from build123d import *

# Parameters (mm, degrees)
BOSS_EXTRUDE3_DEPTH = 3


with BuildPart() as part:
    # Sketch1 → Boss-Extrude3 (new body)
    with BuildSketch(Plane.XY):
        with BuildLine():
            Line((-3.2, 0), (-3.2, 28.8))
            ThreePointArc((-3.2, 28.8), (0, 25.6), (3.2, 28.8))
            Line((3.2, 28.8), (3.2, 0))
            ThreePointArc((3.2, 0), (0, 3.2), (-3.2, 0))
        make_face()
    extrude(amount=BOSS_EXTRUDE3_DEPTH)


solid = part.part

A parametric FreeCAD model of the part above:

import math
import FreeCAD as App
import Part
import Sketcher
from FreeCAD import Vector

doc = App.newDocument("Part")
body = doc.addObject("PartDesign::Body", "Body")

sketch1 = body.newObject("Sketcher::SketchObject", "Sketch")
sketch1.AttachmentSupport = (doc.getObject("XY_Plane"), [""])
sketch1.MapMode = "FlatFace"
sketch1.addGeometry(Part.LineSegment(Vector(-3.2, 28.8, 0), Vector(-3.2, 0, 0)), False)
sketch1.addGeometry(Part.ArcOfCircle(Part.Circle(Vector(0, 0, 0), Vector(0, 0, 1), 3.2), math.radians(0), math.radians(180)), False)
sketch1.addGeometry(Part.LineSegment(Vector(3.2, 0, 0), Vector(3.2, 28.8, 0)), False)
sketch1.addGeometry(Part.ArcOfCircle(Part.Circle(Vector(0, 28.8, 0), Vector(0, 0, 1), 3.2), math.radians(180), math.radians(360)), False)
sketch1.addConstraint(Sketcher.Constraint("Tangent", 0, 2, 1, 2))
sketch1.addConstraint(Sketcher.Constraint("Tangent", 1, 1, 2, 1))
sketch1.addConstraint(Sketcher.Constraint("Tangent", 2, 2, 3, 2))
sketch1.addConstraint(Sketcher.Constraint("Tangent", 3, 1, 0, 1))
sketch1.addConstraint(Sketcher.Constraint("Vertical", 0))
sketch1.addConstraint(Sketcher.Constraint("Vertical", 2))
sketch1.addConstraint(Sketcher.Constraint("Coincident", 1, 3, -1, 1))
sketch1.addConstraint(Sketcher.Constraint("Radius", 1, 3.2))
sketch1.addConstraint(Sketcher.Constraint("DistanceY", 0, 2, 0, 1, 28.8))
pad1 = body.newObject("PartDesign::Pad", "Pad")
pad1.Profile = sketch1
pad1.Length = 3

doc.recompute()
